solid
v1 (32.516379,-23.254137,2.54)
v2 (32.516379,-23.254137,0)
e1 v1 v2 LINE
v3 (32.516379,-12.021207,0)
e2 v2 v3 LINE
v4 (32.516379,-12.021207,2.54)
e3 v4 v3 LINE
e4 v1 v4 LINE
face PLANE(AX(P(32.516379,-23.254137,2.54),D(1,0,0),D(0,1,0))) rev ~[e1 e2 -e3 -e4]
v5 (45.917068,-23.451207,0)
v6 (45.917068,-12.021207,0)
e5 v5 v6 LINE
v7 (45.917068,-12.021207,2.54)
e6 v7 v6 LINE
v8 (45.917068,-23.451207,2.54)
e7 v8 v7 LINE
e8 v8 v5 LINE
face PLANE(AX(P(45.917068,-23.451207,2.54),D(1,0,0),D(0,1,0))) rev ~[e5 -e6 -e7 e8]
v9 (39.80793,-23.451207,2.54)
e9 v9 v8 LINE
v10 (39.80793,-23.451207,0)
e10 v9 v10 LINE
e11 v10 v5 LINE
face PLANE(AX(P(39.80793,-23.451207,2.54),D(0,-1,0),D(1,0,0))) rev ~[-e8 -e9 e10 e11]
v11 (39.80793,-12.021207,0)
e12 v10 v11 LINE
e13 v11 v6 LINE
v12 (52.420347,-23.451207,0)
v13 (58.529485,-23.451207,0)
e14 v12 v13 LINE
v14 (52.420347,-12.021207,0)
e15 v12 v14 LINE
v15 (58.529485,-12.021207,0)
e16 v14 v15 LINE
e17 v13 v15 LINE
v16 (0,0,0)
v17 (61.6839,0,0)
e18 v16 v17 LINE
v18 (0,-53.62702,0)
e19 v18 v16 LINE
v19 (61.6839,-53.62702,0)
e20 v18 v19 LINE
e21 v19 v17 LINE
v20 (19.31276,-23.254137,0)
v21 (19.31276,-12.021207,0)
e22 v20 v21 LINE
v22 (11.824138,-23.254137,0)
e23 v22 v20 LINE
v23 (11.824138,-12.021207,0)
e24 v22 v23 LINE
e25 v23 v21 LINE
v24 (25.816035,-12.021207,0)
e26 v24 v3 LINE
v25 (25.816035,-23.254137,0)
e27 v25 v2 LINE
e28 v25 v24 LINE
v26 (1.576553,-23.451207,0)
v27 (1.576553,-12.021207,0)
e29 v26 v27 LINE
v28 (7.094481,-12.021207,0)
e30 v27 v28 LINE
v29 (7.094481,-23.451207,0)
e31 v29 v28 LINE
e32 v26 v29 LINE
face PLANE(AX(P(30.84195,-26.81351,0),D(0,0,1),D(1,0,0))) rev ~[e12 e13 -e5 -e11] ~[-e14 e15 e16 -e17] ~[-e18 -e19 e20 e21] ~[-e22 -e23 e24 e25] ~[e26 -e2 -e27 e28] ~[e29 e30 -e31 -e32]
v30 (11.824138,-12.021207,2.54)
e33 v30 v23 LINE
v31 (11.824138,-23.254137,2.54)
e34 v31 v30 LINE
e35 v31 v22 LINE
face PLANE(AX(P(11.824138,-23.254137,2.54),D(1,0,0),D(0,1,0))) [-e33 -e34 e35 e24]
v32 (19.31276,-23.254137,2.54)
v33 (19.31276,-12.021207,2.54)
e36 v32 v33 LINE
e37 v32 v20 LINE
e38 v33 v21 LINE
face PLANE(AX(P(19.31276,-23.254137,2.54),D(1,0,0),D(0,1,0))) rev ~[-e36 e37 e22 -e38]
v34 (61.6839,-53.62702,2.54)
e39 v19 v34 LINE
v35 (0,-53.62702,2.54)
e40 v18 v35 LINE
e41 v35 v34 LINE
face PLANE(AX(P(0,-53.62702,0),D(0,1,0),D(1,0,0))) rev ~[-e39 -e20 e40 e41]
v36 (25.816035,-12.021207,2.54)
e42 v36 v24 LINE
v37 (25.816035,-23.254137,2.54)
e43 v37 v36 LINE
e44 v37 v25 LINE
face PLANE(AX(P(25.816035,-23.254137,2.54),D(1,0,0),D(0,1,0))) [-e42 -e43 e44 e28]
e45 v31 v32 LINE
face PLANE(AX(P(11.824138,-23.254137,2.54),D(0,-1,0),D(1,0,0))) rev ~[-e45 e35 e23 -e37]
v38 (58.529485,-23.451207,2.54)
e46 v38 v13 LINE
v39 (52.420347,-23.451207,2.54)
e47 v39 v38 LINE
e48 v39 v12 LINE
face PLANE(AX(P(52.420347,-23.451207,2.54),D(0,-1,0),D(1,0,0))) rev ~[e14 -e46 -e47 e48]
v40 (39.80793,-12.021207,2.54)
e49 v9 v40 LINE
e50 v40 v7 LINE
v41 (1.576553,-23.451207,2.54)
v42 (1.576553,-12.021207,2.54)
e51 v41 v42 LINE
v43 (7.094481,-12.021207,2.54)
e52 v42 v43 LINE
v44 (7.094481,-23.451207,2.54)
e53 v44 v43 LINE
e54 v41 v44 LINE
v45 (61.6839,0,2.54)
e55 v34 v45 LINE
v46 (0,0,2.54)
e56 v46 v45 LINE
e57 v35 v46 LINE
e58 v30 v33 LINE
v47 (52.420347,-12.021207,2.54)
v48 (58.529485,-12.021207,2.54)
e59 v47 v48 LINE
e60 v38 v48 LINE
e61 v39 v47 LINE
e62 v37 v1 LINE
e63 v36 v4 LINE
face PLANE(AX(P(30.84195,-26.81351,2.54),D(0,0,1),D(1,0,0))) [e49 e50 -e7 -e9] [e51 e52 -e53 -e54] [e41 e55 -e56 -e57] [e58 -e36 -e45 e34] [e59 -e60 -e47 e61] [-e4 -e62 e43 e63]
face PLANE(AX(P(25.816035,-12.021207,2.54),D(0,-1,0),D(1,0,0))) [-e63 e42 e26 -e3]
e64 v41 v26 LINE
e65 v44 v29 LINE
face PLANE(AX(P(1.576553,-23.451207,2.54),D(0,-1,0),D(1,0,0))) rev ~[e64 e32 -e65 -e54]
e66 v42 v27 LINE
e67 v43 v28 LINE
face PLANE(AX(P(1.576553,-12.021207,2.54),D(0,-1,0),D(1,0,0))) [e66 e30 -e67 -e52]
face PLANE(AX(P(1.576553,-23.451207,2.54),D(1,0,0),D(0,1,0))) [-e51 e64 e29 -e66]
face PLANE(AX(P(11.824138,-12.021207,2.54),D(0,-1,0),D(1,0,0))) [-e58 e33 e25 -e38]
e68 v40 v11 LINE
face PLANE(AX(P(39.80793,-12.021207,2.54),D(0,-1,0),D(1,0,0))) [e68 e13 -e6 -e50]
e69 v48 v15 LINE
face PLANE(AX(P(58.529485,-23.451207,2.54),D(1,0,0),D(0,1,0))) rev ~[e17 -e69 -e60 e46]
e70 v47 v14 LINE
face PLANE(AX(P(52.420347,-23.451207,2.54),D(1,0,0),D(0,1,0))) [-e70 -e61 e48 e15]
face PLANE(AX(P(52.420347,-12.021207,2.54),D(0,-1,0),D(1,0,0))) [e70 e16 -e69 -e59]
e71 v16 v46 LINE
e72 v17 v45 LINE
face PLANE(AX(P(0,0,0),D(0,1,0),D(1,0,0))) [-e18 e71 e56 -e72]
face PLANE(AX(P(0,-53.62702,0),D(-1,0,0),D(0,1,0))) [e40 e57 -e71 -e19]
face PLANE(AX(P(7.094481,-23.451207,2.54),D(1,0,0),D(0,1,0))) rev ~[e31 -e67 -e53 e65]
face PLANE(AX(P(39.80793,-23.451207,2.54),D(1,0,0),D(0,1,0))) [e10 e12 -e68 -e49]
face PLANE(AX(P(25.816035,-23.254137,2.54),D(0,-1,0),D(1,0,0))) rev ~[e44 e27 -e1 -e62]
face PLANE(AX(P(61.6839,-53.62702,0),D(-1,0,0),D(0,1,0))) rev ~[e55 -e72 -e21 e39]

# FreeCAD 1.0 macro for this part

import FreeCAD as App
import Part
import Sketcher
Q = App.Units.Quantity

doc = App.newDocument("Part")
body = doc.addObject("PartDesign::Body", "Body")

# Sketch on XY plane
sketch1 = body.newObject("Sketcher::SketchObject", "Sketch")
sketch1.AttachmentSupport = (doc.getObject("XY_Plane"), [""])
sketch1.MapMode = "FlatFace"
sketch1.addGeometry(Part.LineSegment(App.Vector(0, 0, 0), App.Vector(0, -53.62702, 0)), False)
sketch1.addGeometry(Part.LineSegment(App.Vector(0, -53.62702, 0), App.Vector(61.6839, -53.62702, 0)), False)
sketch1.addGeometry(Part.LineSegment(App.Vector(61.6839, -53.62702, 0), App.Vector(61.6839, 0, 0)), False)
sketch1.addGeometry(Part.LineSegment(App.Vector(61.6839, 0, 0), App.Vector(0, 0, 0)), False)
sketch1.addConstraint(Sketcher.Constraint("Coincident", 0, 2, 1, 1))
sketch1.addConstraint(Sketcher.Constraint("Coincident", 1, 2, 2, 1))
sketch1.addConstraint(Sketcher.Constraint("Coincident", 2, 2, 3, 1))
sketch1.addConstraint(Sketcher.Constraint("Coincident", 3, 2, 0, 1))
sketch1.addConstraint(Sketcher.Constraint("Vertical", 0))
sketch1.addConstraint(Sketcher.Constraint("Horizontal", 1))
sketch1.addConstraint(Sketcher.Constraint("Vertical", 2))
sketch1.addConstraint(Sketcher.Constraint("Horizontal", 3))
sketch1.addConstraint(Sketcher.Constraint("Coincident", 3, 2, -1, 1))
sketch1.addConstraint(Sketcher.Constraint("DistanceX", 1, 1, 1, 2, Q("2.4285 in")))
sketch1.addConstraint(Sketcher.Constraint("DistanceY", 0, 2, 0, 1, Q("2.1113 in")))
pad1 = body.newObject("PartDesign::Pad", "Pad")
pad1.Profile = sketch1
pad1.Length = Q("0.1 in")

# Sketch on XY plane
sketch2 = body.newObject("Sketcher::SketchObject", "Sketch001")
sketch2.AttachmentSupport = (doc.getObject("XY_Plane"), [""])
sketch2.MapMode = "FlatFace"
sketch2.AttachmentOffset = App.Placement(App.Vector(0, 0, 0.1 * 25.4), App.Rotation())
sketch2.addGeometry(Part.LineSegment(App.Vector(11.824138, -12.021207, 0), App.Vector(11.824138, -23.254137, 0)), False)
sketch2.addGeometry(Part.LineSegment(App.Vector(11.824138, -23.254137, 0), App.Vector(19.31276, -23.254137, 0)), False)
sketch2.addGeometry(Part.LineSegment(App.Vector(19.31276, -23.254137, 0), App.Vector(19.31276, -12.021207, 0)), False)
sketch2.addGeometry(Part.LineSegment(App.Vector(19.31276, -12.021207, 0), App.Vector(11.824138, -12.021207, 0)), False)
sketch2.addGeometry(Part.LineSegment(App.Vector(25.816035, -12.021207, 0), App.Vector(25.816035, -23.254137, 0)), False)
sketch2.addGeometry(Part.LineSegment(App.Vector(25.816035, -23.254137, 0), App.Vector(32.516379, -23.254137, 0)), False)
sketch2.addGeometry(Part.LineSegment(App.Vector(32.516379, -23.254137, 0), App.Vector(32.516379, -12.021207, 0)), False)
sketch2.addGeometry(Part.LineSegment(App.Vector(32.516379, -12.021207, 0), App.Vector(25.816035, -12.021207, 0)), False)
sketch2.addGeometry(Part.LineSegment(App.Vector(39.80793, -12.021207, 0), App.Vector(39.80793, -23.451207, 0)), False)
sketch2.addGeometry(Part.LineSegment(App.Vector(39.80793, -23.451207, 0), App.Vector(45.917068, -23.451207, 0)), False)
sketch2.addGeometry(Part.LineSegment(App.Vector(45.917068, -23.451207, 0), App.Vector(45.917068, -12.021207, 0)), False)
sketch2.addGeometry(Part.LineSegment(App.Vector(45.917068, -12.021207, 0), App.Vector(39.80793, -12.021207, 0)), False)
sketch2.addGeometry(Part.LineSegment(App.Vector(52.420347, -12.021207, 0), App.Vector(52.420347, -23.451207, 0)), False)
sketch2.addGeometry(Part.LineSegment(App.Vector(52.420347, -23.451207, 0), App.Vector(58.529485, -23.451207, 0)), False)
sketch2.addGeometry(Part.LineSegment(App.Vector(58.529485, -23.451207, 0), App.Vector(58.529485, -12.021207, 0)), False)
sketch2.addGeometry(Part.LineSegment(App.Vector(58.529485, -12.021207, 0), App.Vector(52.420347, -12.021207, 0)), False)
sketch2.addGeometry(Part.LineSegment(App.Vector(1.576553, -12.021207, 0), App.Vector(1.576553, -23.451207, 0)), False)
sketch2.addGeometry(Part.LineSegment(App.Vector(1.576553, -23.451207, 0), App.Vector(7.094481, -23.451207, 0)), False)
sketch2.addGeometry(Part.LineSegment(App.Vector(7.094481, -23.451207, 0), App.Vector(7.094481, -12.021207, 0)), False)
sketch2.addGeometry(Part.LineSegment(App.Vector(7.094481, -12.021207, 0), App.Vector(1.576553, -12.021207, 0)), False)
sketch2.addConstraint(Sketcher.Constraint("Coincident", 0, 2, 1, 1))
sketch2.addConstraint(Sketcher.Constraint("Coincident", 1, 2, 2, 1))
sketch2.addConstraint(Sketcher.Constraint("Coincident", 2, 2, 3, 1))
sketch2.addConstraint(Sketcher.Constraint("Coincident", 3, 2, 0, 1))
sketch2.addConstraint(Sketcher.Constraint("Coincident", 4, 2, 5, 1))
sketch2.addConstraint(Sketcher.Constraint("Coincident", 5, 2, 6, 1))
sketch2.addConstraint(Sketcher.Constraint("Coincident", 6, 2, 7, 1))
sketch2.addConstraint(Sketcher.Constraint("Coincident", 7, 2, 4, 1))
sketch2.addConstraint(Sketcher.Constraint("Coincident", 8, 2, 9, 1))
sketch2.addConstraint(Sketcher.Constraint("Coincident", 9, 2, 10, 1))
sketch2.addConstraint(Sketcher.Constraint("Coincident", 10, 2, 11, 1))
sketch2.addConstraint(Sketcher.Constraint("Coincident", 11, 2, 8, 1))
sketch2.addConstraint(Sketcher.Constraint("Coincident", 12, 2, 13, 1))
sketch2.addConstraint(Sketcher.Constraint("Coincident", 13, 2, 14, 1))
sketch2.addConstraint(Sketcher.Constraint("Coincident", 14, 2, 15, 1))
sketch2.addConstraint(Sketcher.Constraint("Coincident", 15, 2, 12, 1))
sketch2.addConstraint(Sketcher.Constraint("Coincident", 16, 2, 17, 1))
sketch2.addConstraint(Sketcher.Constraint("Coincident", 17, 2, 18, 1))
sketch2.addConstraint(Sketcher.Constraint("Coincident", 18, 2, 19, 1))
sketch2.addConstraint(Sketcher.Constraint("Coincident", 19, 2, 16, 1))
sketch2.addConstraint(Sketcher.Constraint("Vertical", 0))
sketch2.addConstraint(Sketcher.Constraint("Horizontal", 1))
sketch2.addConstraint(Sketcher.Constraint("Vertical", 2))
sketch2.addConstraint(Sketcher.Constraint("Horizontal", 3))
sketch2.addConstraint(Sketcher.Constraint("Vertical", 4))
sketch2.addConstraint(Sketcher.Constraint("Horizontal", 5))
sketch2.addConstraint(Sketcher.Constraint("Vertical", 6))
sketch2.addConstraint(Sketcher.Constraint("Horizontal", 7))
sketch2.addConstraint(Sketcher.Constraint("Vertical", 8))
sketch2.addConstraint(Sketcher.Constraint("Horizontal", 9))
sketch2.addConstraint(Sketcher.Constraint("Vertical", 10))
sketch2.addConstraint(Sketcher.Constraint("Horizontal", 11))
sketch2.addConstraint(Sketcher.Constraint("Vertical", 12))
sketch2.addConstraint(Sketcher.Constraint("Horizontal", 13))
sketch2.addConstraint(Sketcher.Constraint("Vertical", 14))
sketch2.addConstraint(Sketcher.Constraint("Horizontal", 15))
sketch2.addConstraint(Sketcher.Constraint("Vertical", 16))
sketch2.addConstraint(Sketcher.Constraint("Horizontal", 17))
sketch2.addConstraint(Sketcher.Constraint("Vertical", 18))
sketch2.addConstraint(Sketcher.Constraint("Horizontal", 19))
sketch2.addConstraint(Sketcher.Constraint("Horizontal", 1, 2, 4, 2))
sketch2.addConstraint(Sketcher.Constraint("Horizontal", 3, 2, 6, 2))
sketch2.addConstraint(Sketcher.Constraint("Horizontal", 7, 2, 10, 2))
sketch2.addConstraint(Sketcher.Constraint("Horizontal", 9, 2, 12, 2))
sketch2.addConstraint(Sketcher.Constraint("Horizontal", 11, 2, 14, 2))
sketch2.addConstraint(Sketcher.Constraint("Horizontal", 13, 2, 16, 2))
sketch2.addConstraint(Sketcher.Constraint("Horizontal", 15, 2, 18, 2))
sketch2.addConstraint(Sketcher.Constraint("Equal", 11, 13))
sketch2.addConstraint(Sketcher.Constraint("DistanceY", 8, 2, 8, 1, Q("0.45 in")))
sketch2.addConstraint(Sketcher.Constraint("DistanceX", 17, 1, 17, 2, 5.517929))
sketch2.addConstraint(Sketcher.Constraint("DistanceY", 0, 2, 0, 1, 11.23293))
sketch2.addConstraint(Sketcher.Constraint("DistanceX", 1, 1, 1, 2, 7.488623))
sketch2.addConstraint(Sketcher.Constraint("DistanceX", 5, 1, 5, 2, 6.700344))
sketch2.addConstraint(Sketcher.Constraint("DistanceX", 9, 1, 9, 2, 6.109137))
sketch2.addConstraint(Sketcher.Constraint("DistanceX", -1, 1, 1, 2, 19.31276))
sketch2.addConstraint(Sketcher.Constraint("DistanceX", -1, 1, 5, 2, 32.516379))
sketch2.addConstraint(Sketcher.Constraint("DistanceX", -1, 1, 8, 2, 39.80793))
sketch2.addConstraint(Sketcher.Constraint("DistanceX", -1, 1, 17, 2, 7.094481))
sketch2.addConstraint(Sketcher.Constraint("DistanceX", 9, 2, 12, 2, 6.50328))
sketch2.addConstraint(Sketcher.Constraint("DistanceY", 0, 2, -1, 1, 23.254137))
pocket1 = body.newObject("PartDesign::Pocket", "Pocket")
pocket1.Profile = sketch2
pocket1.Length = Q("1 in")

doc.recompute()
